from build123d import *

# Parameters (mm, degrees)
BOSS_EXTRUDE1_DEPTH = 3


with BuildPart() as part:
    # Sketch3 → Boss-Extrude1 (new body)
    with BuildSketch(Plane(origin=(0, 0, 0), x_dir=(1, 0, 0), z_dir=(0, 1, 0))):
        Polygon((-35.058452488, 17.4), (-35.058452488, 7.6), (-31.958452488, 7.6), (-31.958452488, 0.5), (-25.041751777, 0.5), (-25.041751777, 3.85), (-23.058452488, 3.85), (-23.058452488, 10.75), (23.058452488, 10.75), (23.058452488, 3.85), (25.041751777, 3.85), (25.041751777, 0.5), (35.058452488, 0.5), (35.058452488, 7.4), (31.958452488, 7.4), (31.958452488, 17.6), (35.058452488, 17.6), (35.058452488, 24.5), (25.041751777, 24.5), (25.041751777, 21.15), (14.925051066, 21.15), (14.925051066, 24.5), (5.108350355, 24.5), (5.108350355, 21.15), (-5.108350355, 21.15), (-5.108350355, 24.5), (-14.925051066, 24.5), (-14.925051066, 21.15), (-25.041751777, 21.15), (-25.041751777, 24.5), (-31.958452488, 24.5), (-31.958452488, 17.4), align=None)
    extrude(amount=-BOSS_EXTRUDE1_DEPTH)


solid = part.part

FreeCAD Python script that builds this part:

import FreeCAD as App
import Part
import Sketcher

V = App.Vector
Q = App.Units.Quantity


def add_polygon(sketch, points):
    """Adds a closed chain of lines whose ends are joined by coincident constraints."""
    first, n = sketch.GeometryCount, len(points)
    for a, b in zip(points, points[1:] + points[:1]):
        sketch.addGeometry(Part.LineSegment(App.Vector(*a, 0), App.Vector(*b, 0)), False)
    for i in range(n):
        sketch.addConstraint(Sketcher.Constraint("Coincident", first + i, 2, first + (i + 1) % n, 1))

doc = App.newDocument("Part")
body = doc.addObject("PartDesign::Body", "Body")

# Sketch on XZ plane
sketch1 = doc.addObject("Sketcher::SketchObject", "Sketch")
body.addObject(sketch1)
sketch1.AttachmentSupport = (doc.XZ_Plane, [""])
sketch1.MapMode = "FlatFace"
add_polygon(sketch1, [(-35.1, -17.4), (-35.1, -7.6), (-32, -7.6), (-32, -0.5), (-25, -0.5), (-25, -3.9), (-23.1, -3.9), (-23.1, -10.8), (23.1, -10.8), (23.1, -3.9), (25, -3.9), (25, -0.5), (35.1, -0.5), (35.1, -7.4), (32, -7.4), (32, -17.6), (35.1, -17.6), (35.1, -24.5), (25, -24.5), (25, -21.1), (14.9, -21.1), (14.9, -24.5), (5.1, -24.5), (5.1, -21.1), (-5.1, -21.1), (-5.1, -24.5), (-14.9, -24.5), (-14.9, -21.1), (-25, -21.1), (-25, -24.5), (-32, -24.5), (-32, -17.4)])  # lines 0-31
sketch1.addConstraint([
    Sketcher.Constraint("Vertical", 0),
    Sketcher.Constraint("Horizontal", 1),
    Sketcher.Constraint("Vertical", 2),
    Sketcher.Constraint("Horizontal", 3),
    Sketcher.Constraint("Vertical", 4),
    Sketcher.Constraint("Horizontal", 5),
    Sketcher.Constraint("Vertical", 6),
    Sketcher.Constraint("Horizontal", 7),
    Sketcher.Constraint("Vertical", 8),
    Sketcher.Constraint("Horizontal", 9),
    Sketcher.Constraint("Vertical", 10),
    Sketcher.Constraint("Horizontal", 11),
    Sketcher.Constraint("Vertical", 12),
    Sketcher.Constraint("Horizontal", 13),
    Sketcher.Constraint("Vertical", 14),
    Sketcher.Constraint("Horizontal", 15),
    Sketcher.Constraint("Vertical", 16),
    Sketcher.Constraint("Horizontal", 17),
    Sketcher.Constraint("Vertical", 18),
    Sketcher.Constraint("Horizontal", 19),
    Sketcher.Constraint("Vertical", 20),
    Sketcher.Constraint("Horizontal", 21),
    Sketcher.Constraint("Vertical", 22),
    Sketcher.Constraint("Horizontal", 23),
    Sketcher.Constraint("Vertical", 24),
    Sketcher.Constraint("Horizontal", 25),
    Sketcher.Constraint("Vertical", 26),
    Sketcher.Constraint("Horizontal", 27),
    Sketcher.Constraint("Vertical", 28),
    Sketcher.Constraint("Horizontal", 29),
    Sketcher.Constraint("Vertical", 30),
    Sketcher.Constraint("Horizontal", 31),
    Sketcher.Constraint("Symmetric", 5, 2, 8, 2, -2),
    Sketcher.Constraint("Symmetric", 3, 2, 10, 2, -2),
    Sketcher.Constraint("Symmetric", 21, 2, 24, 2, -2),
    Sketcher.Constraint("Symmetric", 19, 2, 26, 2, -2),
    Sketcher.Constraint("Symmetric", 17, 2, 28, 2, -2),
    Sketcher.Constraint("Horizontal", 17, 2, 20, 2),
    Sketcher.Constraint("Horizontal", 19, 2, 22, 2),
    Sketcher.Constraint("Vertical", 12, 2, 15, 2),
    Sketcher.Constraint("Vertical", 10, 2, 17, 2),
    Sketcher.Constraint("Vertical", 2, 2, 29, 2),
    Sketcher.Constraint("Equal", 1, 13),
    Sketcher.Constraint("Equal", 8, 12),
    Sketcher.Constraint("Equal", 12, 16),
    Sketcher.Constraint("Equal", 10, 18),
    Sketcher.Constraint("Equal", 2, 30),
    Sketcher.Constraint("DistanceX", 1, 1, 1, 2, Q("3.1 mm")),
    Sketcher.Constraint("DistanceY", 0, 1, 0, 2, Q("9.8 mm")),
    Sketcher.Constraint("DistanceY", 2, 1, 2, 2, Q("7.1 mm")),
    Sketcher.Constraint("DistanceY", 6, 2, 6, 1, Q("6.9 mm")),
    Sketcher.Constraint("DistanceX", 0, 2, 5, 2, Q("12 mm")),
    Sketcher.Constraint("DistanceX", 8, 2, 11, 2, Q("12 mm")),
    Sketcher.Constraint("DistanceY", 4, 2, 4, 1, Q("3.35 mm")),
    Sketcher.Constraint("DistanceY", 0, 2, -1, 1, Q("7.6 mm")),
    Sketcher.Constraint("DistanceX", 3, 1, 3, 2, Q("6.916701 mm")),
    Sketcher.Constraint("DistanceX", 19, 2, 19, 1, Q("10.116701 mm")),
    Sketcher.Constraint("DistanceX", 21, 2, 21, 1, Q("9.816701 mm")),
    Sketcher.Constraint("DistanceX", 23, 2, 23, 1, Q("10.216701 mm")),
])
pad1 = doc.addObject("PartDesign::Pad", "Pad")
body.addObject(pad1)
pad1.Profile = sketch1
pad1.Length = 3

doc.recompute()
